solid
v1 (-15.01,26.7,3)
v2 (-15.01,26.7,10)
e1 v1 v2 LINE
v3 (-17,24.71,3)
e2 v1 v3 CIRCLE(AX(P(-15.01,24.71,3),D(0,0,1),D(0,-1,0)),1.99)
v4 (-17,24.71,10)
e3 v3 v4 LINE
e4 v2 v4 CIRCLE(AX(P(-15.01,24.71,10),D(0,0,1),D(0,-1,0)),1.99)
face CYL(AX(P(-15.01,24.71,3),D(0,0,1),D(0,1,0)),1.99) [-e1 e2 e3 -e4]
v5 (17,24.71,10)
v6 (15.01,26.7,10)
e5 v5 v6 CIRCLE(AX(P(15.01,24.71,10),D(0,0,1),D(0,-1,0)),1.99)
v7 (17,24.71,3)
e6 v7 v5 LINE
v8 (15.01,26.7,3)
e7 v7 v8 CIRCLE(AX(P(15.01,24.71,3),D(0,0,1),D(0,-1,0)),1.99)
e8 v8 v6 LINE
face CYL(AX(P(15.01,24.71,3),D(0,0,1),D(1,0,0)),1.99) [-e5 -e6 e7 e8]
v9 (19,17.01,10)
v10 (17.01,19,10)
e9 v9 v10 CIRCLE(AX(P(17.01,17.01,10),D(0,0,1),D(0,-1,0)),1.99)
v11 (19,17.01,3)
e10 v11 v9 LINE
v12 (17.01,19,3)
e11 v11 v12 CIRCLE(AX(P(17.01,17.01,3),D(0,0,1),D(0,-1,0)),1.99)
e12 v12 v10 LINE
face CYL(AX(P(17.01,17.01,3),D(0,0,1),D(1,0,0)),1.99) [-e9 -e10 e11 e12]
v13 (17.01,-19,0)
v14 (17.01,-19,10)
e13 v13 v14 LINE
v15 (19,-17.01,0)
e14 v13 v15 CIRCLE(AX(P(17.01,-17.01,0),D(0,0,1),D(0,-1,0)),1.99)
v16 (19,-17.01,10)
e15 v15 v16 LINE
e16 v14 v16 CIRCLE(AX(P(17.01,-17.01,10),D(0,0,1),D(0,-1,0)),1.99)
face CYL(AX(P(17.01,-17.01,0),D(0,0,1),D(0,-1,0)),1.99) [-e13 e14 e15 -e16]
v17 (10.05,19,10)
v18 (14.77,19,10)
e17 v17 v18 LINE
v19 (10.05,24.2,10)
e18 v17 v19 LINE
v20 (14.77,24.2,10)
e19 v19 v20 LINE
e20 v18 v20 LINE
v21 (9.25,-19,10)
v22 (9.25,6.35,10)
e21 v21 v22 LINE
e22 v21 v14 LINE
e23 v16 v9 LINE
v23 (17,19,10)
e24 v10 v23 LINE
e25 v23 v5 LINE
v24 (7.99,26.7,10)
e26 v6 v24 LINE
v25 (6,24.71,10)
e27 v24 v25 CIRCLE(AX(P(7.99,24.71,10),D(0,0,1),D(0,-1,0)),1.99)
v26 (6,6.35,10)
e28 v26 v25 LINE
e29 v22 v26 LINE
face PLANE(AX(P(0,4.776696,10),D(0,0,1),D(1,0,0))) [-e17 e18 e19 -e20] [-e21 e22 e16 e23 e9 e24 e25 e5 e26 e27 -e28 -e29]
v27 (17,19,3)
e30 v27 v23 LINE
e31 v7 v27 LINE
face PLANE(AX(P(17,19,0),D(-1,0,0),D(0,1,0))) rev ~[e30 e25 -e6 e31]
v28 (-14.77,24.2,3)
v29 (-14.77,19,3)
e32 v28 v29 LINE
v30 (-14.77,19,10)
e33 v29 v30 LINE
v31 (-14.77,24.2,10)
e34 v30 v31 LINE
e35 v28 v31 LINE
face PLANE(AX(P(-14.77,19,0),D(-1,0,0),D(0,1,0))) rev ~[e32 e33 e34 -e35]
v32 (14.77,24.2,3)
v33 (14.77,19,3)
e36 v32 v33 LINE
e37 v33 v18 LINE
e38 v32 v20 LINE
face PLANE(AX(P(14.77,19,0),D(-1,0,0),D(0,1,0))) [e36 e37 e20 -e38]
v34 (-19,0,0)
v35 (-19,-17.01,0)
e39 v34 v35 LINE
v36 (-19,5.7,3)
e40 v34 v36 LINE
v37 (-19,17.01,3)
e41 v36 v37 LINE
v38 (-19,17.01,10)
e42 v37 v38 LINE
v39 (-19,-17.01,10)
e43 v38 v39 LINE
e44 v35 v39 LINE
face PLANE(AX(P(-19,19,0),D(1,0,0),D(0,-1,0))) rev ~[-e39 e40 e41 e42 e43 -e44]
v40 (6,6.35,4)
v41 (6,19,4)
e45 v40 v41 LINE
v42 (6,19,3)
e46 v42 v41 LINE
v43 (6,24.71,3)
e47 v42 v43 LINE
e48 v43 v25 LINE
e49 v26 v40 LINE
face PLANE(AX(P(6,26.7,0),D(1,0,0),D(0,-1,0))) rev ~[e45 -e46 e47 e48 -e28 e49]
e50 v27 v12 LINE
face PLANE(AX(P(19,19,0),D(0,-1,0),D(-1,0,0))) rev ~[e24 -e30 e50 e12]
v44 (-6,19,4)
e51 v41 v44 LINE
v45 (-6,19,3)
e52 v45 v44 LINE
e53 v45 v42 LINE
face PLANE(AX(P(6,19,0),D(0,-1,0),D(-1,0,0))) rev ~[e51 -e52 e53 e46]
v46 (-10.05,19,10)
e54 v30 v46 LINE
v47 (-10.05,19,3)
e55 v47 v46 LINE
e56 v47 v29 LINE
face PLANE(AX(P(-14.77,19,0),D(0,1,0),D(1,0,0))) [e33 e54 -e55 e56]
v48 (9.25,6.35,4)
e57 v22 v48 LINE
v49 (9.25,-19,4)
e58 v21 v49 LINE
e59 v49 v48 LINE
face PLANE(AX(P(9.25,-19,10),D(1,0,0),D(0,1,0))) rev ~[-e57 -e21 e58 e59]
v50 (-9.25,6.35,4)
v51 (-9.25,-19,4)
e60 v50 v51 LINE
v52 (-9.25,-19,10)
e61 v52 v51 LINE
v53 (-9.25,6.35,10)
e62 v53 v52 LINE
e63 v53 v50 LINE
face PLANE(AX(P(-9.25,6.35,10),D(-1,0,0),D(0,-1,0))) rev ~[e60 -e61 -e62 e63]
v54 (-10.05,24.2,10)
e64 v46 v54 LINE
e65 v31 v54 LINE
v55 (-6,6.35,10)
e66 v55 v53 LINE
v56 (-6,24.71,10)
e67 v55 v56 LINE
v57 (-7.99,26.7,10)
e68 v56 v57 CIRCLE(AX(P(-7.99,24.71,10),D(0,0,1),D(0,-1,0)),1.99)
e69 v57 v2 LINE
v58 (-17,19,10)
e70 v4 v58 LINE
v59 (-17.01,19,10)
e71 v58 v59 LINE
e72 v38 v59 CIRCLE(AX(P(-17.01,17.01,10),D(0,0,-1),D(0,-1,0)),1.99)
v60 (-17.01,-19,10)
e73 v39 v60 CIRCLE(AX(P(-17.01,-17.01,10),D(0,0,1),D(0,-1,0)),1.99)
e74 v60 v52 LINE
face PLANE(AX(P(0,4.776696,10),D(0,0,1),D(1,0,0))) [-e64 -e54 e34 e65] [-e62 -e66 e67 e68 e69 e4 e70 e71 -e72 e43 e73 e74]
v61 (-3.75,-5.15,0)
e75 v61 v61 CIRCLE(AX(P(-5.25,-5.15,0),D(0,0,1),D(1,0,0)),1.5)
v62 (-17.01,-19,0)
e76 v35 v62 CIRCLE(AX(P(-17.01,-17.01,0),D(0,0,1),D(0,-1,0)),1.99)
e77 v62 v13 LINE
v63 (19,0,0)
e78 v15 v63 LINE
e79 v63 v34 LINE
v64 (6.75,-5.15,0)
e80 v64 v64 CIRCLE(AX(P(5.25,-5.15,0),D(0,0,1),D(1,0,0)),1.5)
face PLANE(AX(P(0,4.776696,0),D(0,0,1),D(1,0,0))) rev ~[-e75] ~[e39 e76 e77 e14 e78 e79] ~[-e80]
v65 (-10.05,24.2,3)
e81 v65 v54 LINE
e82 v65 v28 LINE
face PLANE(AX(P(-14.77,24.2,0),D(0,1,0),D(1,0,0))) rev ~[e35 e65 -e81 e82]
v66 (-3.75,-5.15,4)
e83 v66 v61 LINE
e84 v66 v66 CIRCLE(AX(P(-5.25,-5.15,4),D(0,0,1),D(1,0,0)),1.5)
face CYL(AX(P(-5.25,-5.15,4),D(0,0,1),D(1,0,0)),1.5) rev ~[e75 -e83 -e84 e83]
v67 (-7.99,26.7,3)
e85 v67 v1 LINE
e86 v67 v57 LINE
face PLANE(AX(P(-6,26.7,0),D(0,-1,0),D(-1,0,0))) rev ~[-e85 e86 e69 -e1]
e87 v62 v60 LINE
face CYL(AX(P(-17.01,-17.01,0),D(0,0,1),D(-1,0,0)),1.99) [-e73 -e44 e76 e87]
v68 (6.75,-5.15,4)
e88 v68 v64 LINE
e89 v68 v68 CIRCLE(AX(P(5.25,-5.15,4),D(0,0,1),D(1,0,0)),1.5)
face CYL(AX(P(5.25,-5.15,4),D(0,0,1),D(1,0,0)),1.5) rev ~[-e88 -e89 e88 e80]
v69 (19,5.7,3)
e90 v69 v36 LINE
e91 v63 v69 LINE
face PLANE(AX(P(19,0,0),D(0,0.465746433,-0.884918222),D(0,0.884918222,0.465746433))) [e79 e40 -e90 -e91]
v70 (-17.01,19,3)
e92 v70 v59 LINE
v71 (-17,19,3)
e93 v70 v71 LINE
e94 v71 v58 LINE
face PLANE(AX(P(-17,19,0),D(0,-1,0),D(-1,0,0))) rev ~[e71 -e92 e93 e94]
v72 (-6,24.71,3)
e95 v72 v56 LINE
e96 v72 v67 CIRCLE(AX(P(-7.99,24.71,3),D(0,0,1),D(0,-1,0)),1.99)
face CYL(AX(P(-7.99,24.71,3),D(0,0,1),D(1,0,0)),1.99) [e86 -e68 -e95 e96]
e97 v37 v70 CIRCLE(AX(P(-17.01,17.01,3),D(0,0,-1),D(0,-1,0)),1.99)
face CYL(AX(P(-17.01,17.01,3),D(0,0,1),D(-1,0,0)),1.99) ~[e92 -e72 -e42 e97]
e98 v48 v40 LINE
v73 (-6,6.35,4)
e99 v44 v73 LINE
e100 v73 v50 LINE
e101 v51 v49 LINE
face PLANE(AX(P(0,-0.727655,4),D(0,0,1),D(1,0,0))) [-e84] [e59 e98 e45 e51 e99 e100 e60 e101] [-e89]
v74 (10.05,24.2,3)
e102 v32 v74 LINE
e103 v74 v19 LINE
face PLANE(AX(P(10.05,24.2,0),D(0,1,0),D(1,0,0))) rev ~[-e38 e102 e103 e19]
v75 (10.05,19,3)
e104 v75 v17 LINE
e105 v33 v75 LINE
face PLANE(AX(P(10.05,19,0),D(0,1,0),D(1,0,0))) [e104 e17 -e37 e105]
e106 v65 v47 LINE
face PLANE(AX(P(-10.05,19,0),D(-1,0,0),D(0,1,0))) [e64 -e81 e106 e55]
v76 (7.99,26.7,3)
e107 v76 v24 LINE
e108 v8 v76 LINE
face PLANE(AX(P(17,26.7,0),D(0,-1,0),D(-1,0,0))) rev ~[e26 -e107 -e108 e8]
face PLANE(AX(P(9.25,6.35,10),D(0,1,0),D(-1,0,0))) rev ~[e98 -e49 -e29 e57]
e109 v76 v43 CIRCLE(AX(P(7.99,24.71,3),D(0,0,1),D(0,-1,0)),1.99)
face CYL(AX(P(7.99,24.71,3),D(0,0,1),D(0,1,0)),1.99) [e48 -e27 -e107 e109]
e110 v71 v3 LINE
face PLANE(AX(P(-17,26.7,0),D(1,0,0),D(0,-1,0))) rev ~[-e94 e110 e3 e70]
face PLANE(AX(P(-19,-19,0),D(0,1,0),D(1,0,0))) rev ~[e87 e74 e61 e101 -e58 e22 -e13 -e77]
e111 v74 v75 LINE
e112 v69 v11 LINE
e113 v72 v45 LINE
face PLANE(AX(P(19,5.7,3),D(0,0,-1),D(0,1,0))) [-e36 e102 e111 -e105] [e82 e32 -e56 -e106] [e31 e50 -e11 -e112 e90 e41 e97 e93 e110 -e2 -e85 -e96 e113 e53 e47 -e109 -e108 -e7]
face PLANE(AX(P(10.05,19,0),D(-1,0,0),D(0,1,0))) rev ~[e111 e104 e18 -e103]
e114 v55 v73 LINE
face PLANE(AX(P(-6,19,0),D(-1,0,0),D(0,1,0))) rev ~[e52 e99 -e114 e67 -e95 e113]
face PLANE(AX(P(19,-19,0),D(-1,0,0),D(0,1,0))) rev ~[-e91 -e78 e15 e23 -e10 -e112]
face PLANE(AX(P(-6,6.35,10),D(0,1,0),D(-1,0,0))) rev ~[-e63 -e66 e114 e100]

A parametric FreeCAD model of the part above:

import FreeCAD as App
import Part
import Sketcher
from FreeCAD import Vector


def edges_at(feature, points):
    """Names of the edges that pass closest to the given points."""
    edges = feature.Shape.Edges
    near = lambda p: min(range(len(edges)), key=lambda i: edges[i].distToShape(Part.Vertex(*p))[0])
    return sorted({f"Edge{near(p) + 1}" for p in points})


def add_polygon(sketch, points):
    """Adds a closed chain of lines whose ends are joined by coincident constraints."""
    first, n = sketch.GeometryCount, len(points)
    for a, b in zip(points, points[1:] + points[:1]):
        sketch.addGeometry(Part.LineSegment(App.Vector(*a, 0), App.Vector(*b, 0)), False)
    for i in range(n):
        sketch.addConstraint(Sketcher.Constraint("Coincident", first + i, 2, first + (i + 1) % n, 1))

doc = App.newDocument("Part")
body = doc.addObject("PartDesign::Body", "Body")

# Sketch on XY plane
sketch1 = doc.addObject("Sketcher::SketchObject", "Sketch")
body.addObject(sketch1)
sketch1.AttachmentSupport = (doc.XY_Plane, [""])
sketch1.MapMode = "FlatFace"
add_polygon(sketch1, [(-19, 19), (-19, -19), (19, -19), (19, 19), (17, 19), (17, 26.7), (6, 26.7), (6, 19), (-6, 19), (-6, 26.7), (-17, 26.7), (-17, 19)])  # lines 0-11
add_polygon(sketch1, [(-10.1, 19), (-14.8, 19), (-14.8, 24.2), (-10.1, 24.2)])  # lines 12-15
add_polygon(sketch1, [(14.8, 19), (10.1, 19), (10.1, 24.2), (14.8, 24.2)])  # lines 16-19
sketch1.addConstraint([
    Sketcher.Constraint("Vertical", 0),
    Sketcher.Constraint("Horizontal", 1),
    Sketcher.Constraint("Vertical", 2),
    Sketcher.Constraint("Horizontal", 3),
    Sketcher.Constraint("Vertical", 4),
    Sketcher.Constraint("Horizontal", 5),
    Sketcher.Constraint("Vertical", 6),
    Sketcher.Constraint("Horizontal", 7),
    Sketcher.Constraint("Vertical", 8),
    Sketcher.Constraint("Horizontal", 9),
    Sketcher.Constraint("Vertical", 10),
    Sketcher.Constraint("Horizontal", 11),
    Sketcher.Constraint("Horizontal", 12),
    Sketcher.Constraint("Vertical", 13),
    Sketcher.Constraint("Horizontal", 14),
    Sketcher.Constraint("Vertical", 15),
    Sketcher.Constraint("Horizontal", 16),
    Sketcher.Constraint("Vertical", 17),
    Sketcher.Constraint("Horizontal", 18),
    Sketcher.Constraint("Vertical", 19),
    Sketcher.Constraint("Symmetric", 0, 2, 2, 2, -1, 1),
    Sketcher.Constraint("Symmetric", 5, 2, 8, 2, -2),
    Sketcher.Constraint("Symmetric", 3, 2, 10, 2, -2),
    Sketcher.Constraint("Symmetric", 15, 2, 16, 2, -2),
    Sketcher.Constraint("Symmetric", 13, 2, 18, 2, -2),
    Sketcher.Constraint("Horizontal", 3, 2, 6, 2),
    Sketcher.Constraint("Horizontal", 11, 2, 12, 2),
    Sketcher.Constraint("Equal", 1, 0),
    Sketcher.Constraint("DistanceX", 1, 1, 1, 2, 38.0),
    Sketcher.Constraint("DistanceX", 3, 2, 3, 1, 2.0),
    Sketcher.Constraint("DistanceX", 5, 2, 5, 1, 11.0),
    Sketcher.Constraint("DistanceY", 4, 1, 4, 2, 7.7),
    Sketcher.Constraint("DistanceY", 13, 1, 13, 2, 5.2),
    Sketcher.Constraint("DistanceX", 12, 2, 12, 1, 4.72),
    Sketcher.Constraint("DistanceX", 12, 2, -1, 1, 14.77),
])
pad1 = doc.addObject("PartDesign::Pad", "Pad")
body.addObject(pad1)
pad1.Profile = sketch1
pad1.Length = 10

# Sketch on YZ plane
sketch2 = doc.addObject("Sketcher::SketchObject", "Sketch001")
body.addObject(sketch2)
sketch2.AttachmentSupport = (doc.YZ_Plane, [""])
sketch2.MapMode = "FlatFace"
sketch2.AttachmentOffset = App.Placement(Vector(0, 0, 19), App.Rotation())
add_polygon(sketch2, [(26.7, 0), (26.7, 3), (5.7, 3), (0, 0)])  # lines 0-3
sketch2.addConstraint([
    Sketcher.Constraint("Vertical", 0),
    Sketcher.Constraint("Horizontal", 1),
    Sketcher.Constraint("Horizontal", 3),
    Sketcher.Constraint("Coincident", 2, 2, -1, 1),
    Sketcher.Constraint("DistanceX", 1, 2, 1, 1, 21.0),
    Sketcher.Constraint("DistanceY", 0, 1, 0, 2, 3.0),
    Sketcher.Constraint("DistanceX", 3, 1, 3, 2, 26.7),
])
pocket1 = doc.addObject("PartDesign::Pocket", "Pocket")
body.addObject(pocket1)
pocket1.Profile = sketch2
pocket1.Type = "ThroughAll"

# Sketch on XY plane
sketch3 = doc.addObject("Sketcher::SketchObject", "Sketch002")
body.addObject(sketch3)
sketch3.AttachmentSupport = (doc.XY_Plane, [""])
sketch3.MapMode = "FlatFace"
sketch3.AttachmentOffset = App.Placement(Vector(0, 0, 10), App.Rotation())
add_polygon(sketch3, [(-9.2, -19), (9.2, -19), (9.2, 6.3), (6, 6.3), (6, 19), (-6, 19), (-6, 6.3), (-9.2, 6.3)])  # lines 0-7
sketch3.addConstraint([
    Sketcher.Constraint("Horizontal", 0),
    Sketcher.Constraint("Vertical", 1),
    Sketcher.Constraint("Horizontal", 2),
    Sketcher.Constraint("Vertical", 3),
    Sketcher.Constraint("Horizontal", 4),
    Sketcher.Constraint("Vertical", 5),
    Sketcher.Constraint("Horizontal", 6),
    Sketcher.Constraint("Vertical", 7),
    Sketcher.Constraint("Symmetric", 2, 2, 5, 2, -2),
    Sketcher.Constraint("Equal", 2, 6),
    Sketcher.Constraint("DistanceX", 4, 2, 4, 1, 12.0),
    Sketcher.Constraint("DistanceX", 0, 1, 0, 2, 18.5),
    Sketcher.Constraint("DistanceY", 0, 2, -1, 1, 19.0),
    Sketcher.Constraint("DistanceY", -1, 1, 3, 2, 19.0),
    Sketcher.Constraint("DistanceY", 1, 1, 1, 2, 25.35),
])
pocket2 = doc.addObject("PartDesign::Pocket", "Pocket001")
body.addObject(pocket2)
pocket2.Profile = sketch3
pocket2.Length = 6

# Sketch on XY plane
sketch4 = doc.addObject("Sketcher::SketchObject", "Sketch003")
body.addObject(sketch4)
sketch4.AttachmentSupport = (doc.XY_Plane, [""])
sketch4.MapMode = "FlatFace"
sketch4.AttachmentOffset = App.Placement(Vector(0, 0, 4), App.Rotation())
sketch4.addGeometry([
    Part.Circle(Vector(-5.2, -5.2, 0), Vector(0, 0, 1), 1.5),
    Part.Circle(Vector(5.2, -5.2, 0), Vector(0, 0, 1), 1.5),
], False)
sketch4.addConstraint([
    Sketcher.Constraint("Equal", 0, 1),
    Sketcher.Constraint("Symmetric", 0, 3, 1, 3, -2),
    Sketcher.Constraint("Diameter", 0, 3.0),
    Sketcher.Constraint("DistanceX", 0, 3, 1, 3, 10.5),
    Sketcher.Constraint("DistanceY", 0, 3, -1, 1, 5.15),
])
pocket3 = doc.addObject("PartDesign::Pocket", "Pocket002")
body.addObject(pocket3)
pocket3.Profile = sketch4
pocket3.Length = 5
doc.recompute()

fillet = doc.addObject("PartDesign::Fillet", "Fillet")
body.addObject(fillet)
fillet.Base = (pocket3, edges_at(pocket3, [
    (17, 26.7, 6.5),
    (6, 26.7, 6.5),
    (-6, 26.7, 6.5),
    (-17, 26.7, 6.5),
    (-19, 19, 6.5),
    (19, 19, 6.5),
    (19, -19, 5),
    (-19, -19, 5),
]))
fillet.Radius = 1.99

doc.recompute()
